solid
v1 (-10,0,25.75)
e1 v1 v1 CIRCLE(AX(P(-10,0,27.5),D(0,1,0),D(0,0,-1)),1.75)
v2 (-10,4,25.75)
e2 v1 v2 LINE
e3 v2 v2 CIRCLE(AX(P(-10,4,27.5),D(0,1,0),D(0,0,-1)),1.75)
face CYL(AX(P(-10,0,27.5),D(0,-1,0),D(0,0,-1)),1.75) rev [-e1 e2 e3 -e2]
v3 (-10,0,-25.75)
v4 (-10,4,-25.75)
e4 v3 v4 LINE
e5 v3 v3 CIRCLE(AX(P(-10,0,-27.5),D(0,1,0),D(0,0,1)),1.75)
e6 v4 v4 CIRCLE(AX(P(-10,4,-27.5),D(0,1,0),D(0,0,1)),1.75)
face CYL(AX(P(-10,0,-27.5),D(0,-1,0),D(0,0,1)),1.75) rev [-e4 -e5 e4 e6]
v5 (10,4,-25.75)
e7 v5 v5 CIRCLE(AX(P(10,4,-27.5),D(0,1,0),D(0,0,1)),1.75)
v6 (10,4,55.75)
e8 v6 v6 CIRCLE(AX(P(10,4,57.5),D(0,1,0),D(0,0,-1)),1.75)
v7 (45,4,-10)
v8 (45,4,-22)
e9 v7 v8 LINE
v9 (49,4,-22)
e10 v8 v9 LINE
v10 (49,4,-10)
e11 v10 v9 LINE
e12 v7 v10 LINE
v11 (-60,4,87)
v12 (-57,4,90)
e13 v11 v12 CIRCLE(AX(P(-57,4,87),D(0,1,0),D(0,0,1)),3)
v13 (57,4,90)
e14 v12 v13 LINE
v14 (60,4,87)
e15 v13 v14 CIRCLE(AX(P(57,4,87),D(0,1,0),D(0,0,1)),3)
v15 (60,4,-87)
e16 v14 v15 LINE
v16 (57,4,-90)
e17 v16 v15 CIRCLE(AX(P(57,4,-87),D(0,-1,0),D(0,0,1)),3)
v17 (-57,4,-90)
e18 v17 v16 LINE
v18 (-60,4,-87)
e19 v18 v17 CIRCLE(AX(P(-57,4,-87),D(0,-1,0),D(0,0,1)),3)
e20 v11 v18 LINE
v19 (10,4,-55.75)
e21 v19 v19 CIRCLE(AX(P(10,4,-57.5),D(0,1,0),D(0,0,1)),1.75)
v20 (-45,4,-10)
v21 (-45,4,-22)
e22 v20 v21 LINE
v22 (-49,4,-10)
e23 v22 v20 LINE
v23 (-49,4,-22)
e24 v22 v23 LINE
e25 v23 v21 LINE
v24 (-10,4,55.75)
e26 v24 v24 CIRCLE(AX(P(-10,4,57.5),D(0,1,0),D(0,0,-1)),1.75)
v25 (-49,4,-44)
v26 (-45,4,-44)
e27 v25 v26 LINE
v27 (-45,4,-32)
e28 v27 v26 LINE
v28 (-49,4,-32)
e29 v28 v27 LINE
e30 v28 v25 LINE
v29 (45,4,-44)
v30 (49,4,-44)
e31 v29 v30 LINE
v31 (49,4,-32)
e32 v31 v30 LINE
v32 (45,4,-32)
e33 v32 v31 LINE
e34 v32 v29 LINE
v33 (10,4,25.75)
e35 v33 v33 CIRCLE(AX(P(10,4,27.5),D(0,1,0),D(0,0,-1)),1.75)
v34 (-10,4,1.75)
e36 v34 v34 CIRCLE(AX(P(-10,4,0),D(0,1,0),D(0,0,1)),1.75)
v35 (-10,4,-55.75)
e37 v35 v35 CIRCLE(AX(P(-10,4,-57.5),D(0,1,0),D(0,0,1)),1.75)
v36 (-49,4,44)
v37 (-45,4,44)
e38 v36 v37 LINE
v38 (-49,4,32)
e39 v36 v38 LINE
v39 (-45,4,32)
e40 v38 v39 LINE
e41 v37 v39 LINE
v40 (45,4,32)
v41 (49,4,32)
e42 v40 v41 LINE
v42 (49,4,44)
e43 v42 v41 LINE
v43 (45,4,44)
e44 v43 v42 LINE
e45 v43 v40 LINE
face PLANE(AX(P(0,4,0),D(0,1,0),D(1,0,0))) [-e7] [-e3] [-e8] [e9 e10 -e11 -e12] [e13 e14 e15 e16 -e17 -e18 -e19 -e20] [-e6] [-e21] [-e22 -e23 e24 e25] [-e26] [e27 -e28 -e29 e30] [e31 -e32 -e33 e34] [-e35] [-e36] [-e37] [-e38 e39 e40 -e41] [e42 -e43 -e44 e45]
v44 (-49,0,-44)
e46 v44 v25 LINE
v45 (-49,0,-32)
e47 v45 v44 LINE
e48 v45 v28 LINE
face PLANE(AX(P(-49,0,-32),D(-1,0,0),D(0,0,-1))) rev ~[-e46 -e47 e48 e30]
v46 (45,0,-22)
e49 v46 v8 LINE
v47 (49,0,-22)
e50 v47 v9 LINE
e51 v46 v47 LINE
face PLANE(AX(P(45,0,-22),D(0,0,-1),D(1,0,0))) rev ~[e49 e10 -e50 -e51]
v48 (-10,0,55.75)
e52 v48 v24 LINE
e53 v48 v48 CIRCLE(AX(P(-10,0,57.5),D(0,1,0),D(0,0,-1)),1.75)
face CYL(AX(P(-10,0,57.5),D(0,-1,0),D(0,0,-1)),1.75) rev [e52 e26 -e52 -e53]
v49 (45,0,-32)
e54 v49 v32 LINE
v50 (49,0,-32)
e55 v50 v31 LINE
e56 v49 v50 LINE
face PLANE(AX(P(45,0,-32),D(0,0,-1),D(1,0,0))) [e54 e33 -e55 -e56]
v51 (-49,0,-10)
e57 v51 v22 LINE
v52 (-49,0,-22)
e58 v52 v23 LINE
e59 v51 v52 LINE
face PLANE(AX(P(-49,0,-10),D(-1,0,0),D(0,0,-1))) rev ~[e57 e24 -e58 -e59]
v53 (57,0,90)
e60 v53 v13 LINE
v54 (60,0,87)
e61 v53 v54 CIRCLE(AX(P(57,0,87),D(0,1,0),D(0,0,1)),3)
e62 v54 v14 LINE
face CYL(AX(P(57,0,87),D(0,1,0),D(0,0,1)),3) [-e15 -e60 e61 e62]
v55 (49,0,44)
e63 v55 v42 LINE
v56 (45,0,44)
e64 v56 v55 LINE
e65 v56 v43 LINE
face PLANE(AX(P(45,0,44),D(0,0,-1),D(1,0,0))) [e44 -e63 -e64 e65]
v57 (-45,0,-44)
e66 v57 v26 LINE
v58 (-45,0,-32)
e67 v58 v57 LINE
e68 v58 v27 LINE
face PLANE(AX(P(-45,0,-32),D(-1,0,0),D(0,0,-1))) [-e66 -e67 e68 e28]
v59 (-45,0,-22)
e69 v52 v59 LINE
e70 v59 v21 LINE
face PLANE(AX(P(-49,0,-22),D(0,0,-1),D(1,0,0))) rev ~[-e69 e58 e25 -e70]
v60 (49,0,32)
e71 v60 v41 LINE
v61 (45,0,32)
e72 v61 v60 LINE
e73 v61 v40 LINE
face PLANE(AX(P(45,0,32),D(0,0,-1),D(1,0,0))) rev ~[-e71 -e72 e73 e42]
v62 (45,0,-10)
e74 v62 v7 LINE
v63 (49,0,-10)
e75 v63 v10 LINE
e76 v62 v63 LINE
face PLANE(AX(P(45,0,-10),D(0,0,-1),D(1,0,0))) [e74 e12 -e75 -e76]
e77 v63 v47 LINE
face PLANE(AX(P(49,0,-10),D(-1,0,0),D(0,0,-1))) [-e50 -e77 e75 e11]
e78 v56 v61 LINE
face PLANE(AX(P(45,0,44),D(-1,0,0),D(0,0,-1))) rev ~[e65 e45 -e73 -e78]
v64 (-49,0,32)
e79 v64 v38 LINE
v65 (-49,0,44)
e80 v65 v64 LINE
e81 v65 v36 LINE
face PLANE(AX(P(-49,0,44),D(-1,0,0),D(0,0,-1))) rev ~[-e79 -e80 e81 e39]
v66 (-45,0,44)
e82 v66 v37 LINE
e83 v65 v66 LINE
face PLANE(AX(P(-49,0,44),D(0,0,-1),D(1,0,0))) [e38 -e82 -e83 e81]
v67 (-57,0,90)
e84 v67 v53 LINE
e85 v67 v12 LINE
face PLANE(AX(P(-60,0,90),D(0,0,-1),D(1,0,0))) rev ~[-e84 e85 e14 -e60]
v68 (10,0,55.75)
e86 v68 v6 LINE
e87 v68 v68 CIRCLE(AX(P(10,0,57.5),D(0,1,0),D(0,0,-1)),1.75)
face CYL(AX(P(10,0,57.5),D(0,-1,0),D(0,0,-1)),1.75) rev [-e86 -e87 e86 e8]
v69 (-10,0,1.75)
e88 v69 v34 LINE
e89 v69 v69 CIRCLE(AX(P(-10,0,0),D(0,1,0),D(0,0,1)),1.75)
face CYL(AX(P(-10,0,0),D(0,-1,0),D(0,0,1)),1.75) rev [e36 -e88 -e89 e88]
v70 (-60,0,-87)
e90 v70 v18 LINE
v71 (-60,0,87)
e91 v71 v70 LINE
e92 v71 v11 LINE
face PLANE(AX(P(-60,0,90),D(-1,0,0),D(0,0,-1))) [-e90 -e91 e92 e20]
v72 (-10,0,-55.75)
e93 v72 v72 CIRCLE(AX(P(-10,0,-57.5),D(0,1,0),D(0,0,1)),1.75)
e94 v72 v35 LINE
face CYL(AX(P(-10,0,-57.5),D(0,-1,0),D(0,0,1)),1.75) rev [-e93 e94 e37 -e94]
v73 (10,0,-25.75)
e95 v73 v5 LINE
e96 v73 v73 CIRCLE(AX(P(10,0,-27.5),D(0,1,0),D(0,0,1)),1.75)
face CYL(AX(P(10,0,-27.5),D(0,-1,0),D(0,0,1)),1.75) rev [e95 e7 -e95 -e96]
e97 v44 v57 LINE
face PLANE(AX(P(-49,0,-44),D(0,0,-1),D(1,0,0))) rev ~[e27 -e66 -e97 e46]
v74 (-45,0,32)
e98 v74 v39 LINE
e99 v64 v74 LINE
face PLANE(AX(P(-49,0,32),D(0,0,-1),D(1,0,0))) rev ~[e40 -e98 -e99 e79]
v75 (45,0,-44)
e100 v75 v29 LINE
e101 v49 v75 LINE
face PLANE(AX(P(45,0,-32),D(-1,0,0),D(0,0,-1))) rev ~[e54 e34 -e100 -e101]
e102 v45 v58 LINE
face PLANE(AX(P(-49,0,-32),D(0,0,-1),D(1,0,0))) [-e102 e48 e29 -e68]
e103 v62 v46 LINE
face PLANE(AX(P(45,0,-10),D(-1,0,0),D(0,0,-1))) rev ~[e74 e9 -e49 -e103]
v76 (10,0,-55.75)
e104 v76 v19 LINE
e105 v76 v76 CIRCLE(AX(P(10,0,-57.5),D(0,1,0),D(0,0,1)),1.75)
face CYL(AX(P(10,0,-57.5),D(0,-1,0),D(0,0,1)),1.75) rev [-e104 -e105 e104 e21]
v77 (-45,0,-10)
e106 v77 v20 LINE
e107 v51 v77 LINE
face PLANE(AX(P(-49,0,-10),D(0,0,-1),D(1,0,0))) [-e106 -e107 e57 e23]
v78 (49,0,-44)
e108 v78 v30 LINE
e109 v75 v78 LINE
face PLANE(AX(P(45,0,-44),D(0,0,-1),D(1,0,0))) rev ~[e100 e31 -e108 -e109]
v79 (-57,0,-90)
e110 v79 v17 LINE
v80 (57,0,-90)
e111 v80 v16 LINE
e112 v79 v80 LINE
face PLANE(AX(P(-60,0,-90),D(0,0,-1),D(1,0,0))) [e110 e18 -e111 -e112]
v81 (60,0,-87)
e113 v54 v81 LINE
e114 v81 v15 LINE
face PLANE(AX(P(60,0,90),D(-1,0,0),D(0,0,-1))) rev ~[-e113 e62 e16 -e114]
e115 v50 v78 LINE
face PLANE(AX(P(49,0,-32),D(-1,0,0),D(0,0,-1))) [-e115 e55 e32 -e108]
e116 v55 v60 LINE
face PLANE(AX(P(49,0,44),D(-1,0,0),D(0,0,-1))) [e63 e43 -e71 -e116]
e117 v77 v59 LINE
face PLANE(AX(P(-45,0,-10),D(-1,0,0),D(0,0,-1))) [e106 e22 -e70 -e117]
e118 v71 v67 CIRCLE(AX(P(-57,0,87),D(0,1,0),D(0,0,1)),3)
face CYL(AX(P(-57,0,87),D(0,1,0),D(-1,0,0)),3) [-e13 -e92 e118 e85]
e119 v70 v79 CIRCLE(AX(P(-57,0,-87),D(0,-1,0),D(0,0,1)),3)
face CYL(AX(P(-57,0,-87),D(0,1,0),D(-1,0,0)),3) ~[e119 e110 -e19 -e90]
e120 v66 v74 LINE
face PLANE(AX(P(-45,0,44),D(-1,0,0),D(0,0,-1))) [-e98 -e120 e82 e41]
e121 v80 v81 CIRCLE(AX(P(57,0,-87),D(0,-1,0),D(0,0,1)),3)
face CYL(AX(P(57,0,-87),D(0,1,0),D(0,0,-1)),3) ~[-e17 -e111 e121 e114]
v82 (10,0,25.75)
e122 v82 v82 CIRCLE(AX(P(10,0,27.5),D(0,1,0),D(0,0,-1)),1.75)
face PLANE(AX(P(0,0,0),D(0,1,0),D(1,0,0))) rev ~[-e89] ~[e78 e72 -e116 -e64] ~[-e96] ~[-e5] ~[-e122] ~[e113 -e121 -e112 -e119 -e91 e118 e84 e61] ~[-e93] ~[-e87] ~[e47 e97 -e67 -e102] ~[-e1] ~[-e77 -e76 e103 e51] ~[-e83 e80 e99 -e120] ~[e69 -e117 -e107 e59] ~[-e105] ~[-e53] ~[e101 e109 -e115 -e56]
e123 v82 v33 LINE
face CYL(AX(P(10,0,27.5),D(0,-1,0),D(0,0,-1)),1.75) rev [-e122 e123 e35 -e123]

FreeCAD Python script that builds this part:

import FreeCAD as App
import Part
import Sketcher

V = App.Vector


def edges_at(feature, points):
    """Names of the edges that pass closest to the given points."""
    edges = feature.Shape.Edges
    near = lambda p: min(range(len(edges)), key=lambda i: edges[i].distToShape(Part.Vertex(*p))[0])
    return sorted({f"Edge{near(p) + 1}" for p in points})


def add_polygon(sketch, points):
    """Adds a closed chain of lines whose ends are joined by coincident constraints."""
    first, n = sketch.GeometryCount, len(points)
    for a, b in zip(points, points[1:] + points[:1]):
        sketch.addGeometry(Part.LineSegment(App.Vector(*a, 0), App.Vector(*b, 0)), False)
    for i in range(n):
        sketch.addConstraint(Sketcher.Constraint("Coincident", first + i, 2, first + (i + 1) % n, 1))

doc = App.newDocument("Part")
body = doc.addObject("PartDesign::Body", "Body")

# Sketch on XZ plane
sketch1 = body.newObject("Sketcher::SketchObject", "Sketch")
sketch1.AttachmentSupport = (doc.getObject("XZ_Plane"), [""])
sketch1.MapMode = "FlatFace"
add_polygon(sketch1, [(-60, -90), (-60, 90), (60, 90), (60, -90)])  # lines 0-3
add_polygon(sketch1, [(-45, 44), (-49, 44), (-49, 32), (-45, 32)])  # lines 4-7
sketch1.addGeometry(Part.Circle(V(-10, 57.5, 0), V(0, 0, 1), 1.8), False)  # 8
sketch1.addGeometry(Part.Circle(V(-10, 27.5, 0), V(0, 0, 1), 1.8), False)  # 9
sketch1.addGeometry(Part.Circle(V(-10, 0, 0), V(0, 0, 1), 1.8), False)  # 10
sketch1.addGeometry(Part.Circle(V(10, 57.5, 0), V(0, 0, 1), 1.8), False)  # 11
add_polygon(sketch1, [(49, 44), (45, 44), (45, 32), (49, 32)])  # lines 12-15
sketch1.addGeometry(Part.Circle(V(10, 27.5, 0), V(0, 0, 1), 1.8), False)  # 16
add_polygon(sketch1, [(-45, -10), (-49, -10), (-49, -22), (-45, -22)])  # lines 17-20
sketch1.addGeometry(Part.Circle(V(-10, -27.5, 0), V(0, 0, 1), 1.8), False)  # 21
add_polygon(sketch1, [(-45, -32), (-49, -32), (-49, -44), (-45, -44)])  # lines 22-25
sketch1.addGeometry(Part.Circle(V(-10, -57.5, 0), V(0, 0, 1), 1.8), False)  # 26
sketch1.addGeometry(Part.Circle(V(10, -27.5, 0), V(0, 0, 1), 1.8), False)  # 27
add_polygon(sketch1, [(49, -10), (45, -10), (45, -22), (49, -22)])  # lines 28-31
sketch1.addGeometry(Part.Circle(V(10, -57.5, 0), V(0, 0, 1), 1.8), False)  # 32
add_polygon(sketch1, [(49, -32), (45, -32), (45, -44), (49, -44)])  # lines 33-36
sketch1.addConstraint([
    Sketcher.Constraint("Vertical", 0),
    Sketcher.Constraint("Horizontal", 1),
    Sketcher.Constraint("Vertical", 2),
    Sketcher.Constraint("Horizontal", 3),
    Sketcher.Constraint("Horizontal", 4),
    Sketcher.Constraint("Vertical", 5),
    Sketcher.Constraint("Horizontal", 6),
    Sketcher.Constraint("Vertical", 7),
    Sketcher.Constraint("Horizontal", 12),
    Sketcher.Constraint("Vertical", 13),
    Sketcher.Constraint("Horizontal", 14),
    Sketcher.Constraint("Vertical", 15),
    Sketcher.Constraint("Horizontal", 17),
    Sketcher.Constraint("Vertical", 18),
    Sketcher.Constraint("Horizontal", 19),
    Sketcher.Constraint("Vertical", 20),
    Sketcher.Constraint("Horizontal", 22),
    Sketcher.Constraint("Vertical", 23),
    Sketcher.Constraint("Horizontal", 24),
    Sketcher.Constraint("Vertical", 25),
    Sketcher.Constraint("Horizontal", 28),
    Sketcher.Constraint("Vertical", 29),
    Sketcher.Constraint("Horizontal", 30),
    Sketcher.Constraint("Vertical", 31),
    Sketcher.Constraint("Horizontal", 33),
    Sketcher.Constraint("Vertical", 34),
    Sketcher.Constraint("Horizontal", 35),
    Sketcher.Constraint("Vertical", 36),
    Sketcher.Constraint("Equal", 8, 9),
    Sketcher.Constraint("Equal", 9, 10),
    Sketcher.Constraint("Equal", 10, 11),
    Sketcher.Constraint("Equal", 11, 16),
    Sketcher.Constraint("Equal", 16, 21),
    Sketcher.Constraint("Equal", 21, 26),
    Sketcher.Constraint("Equal", 26, 27),
    Sketcher.Constraint("Equal", 27, 32),
    Sketcher.Constraint("Symmetric", 16, 3, 21, 3, -1, 1),
    Sketcher.Constraint("Symmetric", 11, 3, 26, 3, -1, 1),
    Sketcher.Constraint("Symmetric", 9, 3, 27, 3, -1, 1),
    Sketcher.Constraint("Symmetric", 8, 3, 32, 3, -1, 1),
    Sketcher.Constraint("Symmetric", 0, 2, 2, 2, -1, 1),
    Sketcher.Constraint("Symmetric", 14, 2, 22, 2, -1, 1),
    Sketcher.Constraint("Symmetric", 12, 2, 24, 2, -1, 1),
    Sketcher.Constraint("Symmetric", 6, 2, 33, 2, -1, 1),
    Sketcher.Constraint("Symmetric", 4, 2, 35, 2, -1, 1),
    Sketcher.Constraint("Symmetric", 8, 3, 11, 3, -2),
    Sketcher.Constraint("Symmetric", 9, 3, 16, 3, -2),
    Sketcher.Constraint("Symmetric", 7, 2, 12, 2, -2),
    Sketcher.Constraint("Symmetric", 5, 2, 14, 2, -2),
    Sketcher.Constraint("Symmetric", 20, 2, 28, 2, -2),
    Sketcher.Constraint("Symmetric", 18, 2, 30, 2, -2),
    Sketcher.Constraint("PointOnObject", 10, 3, -1),
    Sketcher.Constraint("Vertical", 8, 3, 9, 3),
    Sketcher.Constraint("Vertical", 9, 3, 10, 3),
    Sketcher.Constraint("Vertical", 5, 2, 17, 2),
    Sketcher.Constraint("Vertical", 7, 2, 19, 2),
    Sketcher.Constraint("Equal", 15, 18),
    Sketcher.Constraint("Diameter", 8, 3.5),
    Sketcher.Constraint("DistanceX", 1, 1, 1, 2, 120.0),
    Sketcher.Constraint("DistanceX", 4, 2, 4, 1, 4.0),
    Sketcher.Constraint("DistanceY", 0, 1, 0, 2, 180.0),
    Sketcher.Constraint("DistanceY", 5, 2, 5, 1, 12.0),
    Sketcher.Constraint("DistanceX", 8, 3, -1, 1, 10.0),
    Sketcher.Constraint("DistanceX", 4, 2, -1, 1, 49.0),
    Sketcher.Constraint("DistanceY", -1, 1, 4, 2, 44.0),
    Sketcher.Constraint("DistanceY", 17, 2, -1, 1, 10.0),
    Sketcher.Constraint("DistanceY", 9, 3, 8, 3, 30.0),
    Sketcher.Constraint("DistanceY", 21, 3, 9, 3, 55.0),
])
pad1 = body.newObject("PartDesign::Pad", "Pad")
pad1.Profile = sketch1
pad1.Length = 4
pad1.Reversed = True
doc.recompute()

fillet = body.newObject("PartDesign::Fillet", "Fillet")
fillet.Base = (pad1, edges_at(pad1, [
    (60, 2, 90),
    (-60, 2, 90),
    (-60, 2, -90),
    (60, 2, -90),
]))
fillet.Radius = 3

doc.recompute()
